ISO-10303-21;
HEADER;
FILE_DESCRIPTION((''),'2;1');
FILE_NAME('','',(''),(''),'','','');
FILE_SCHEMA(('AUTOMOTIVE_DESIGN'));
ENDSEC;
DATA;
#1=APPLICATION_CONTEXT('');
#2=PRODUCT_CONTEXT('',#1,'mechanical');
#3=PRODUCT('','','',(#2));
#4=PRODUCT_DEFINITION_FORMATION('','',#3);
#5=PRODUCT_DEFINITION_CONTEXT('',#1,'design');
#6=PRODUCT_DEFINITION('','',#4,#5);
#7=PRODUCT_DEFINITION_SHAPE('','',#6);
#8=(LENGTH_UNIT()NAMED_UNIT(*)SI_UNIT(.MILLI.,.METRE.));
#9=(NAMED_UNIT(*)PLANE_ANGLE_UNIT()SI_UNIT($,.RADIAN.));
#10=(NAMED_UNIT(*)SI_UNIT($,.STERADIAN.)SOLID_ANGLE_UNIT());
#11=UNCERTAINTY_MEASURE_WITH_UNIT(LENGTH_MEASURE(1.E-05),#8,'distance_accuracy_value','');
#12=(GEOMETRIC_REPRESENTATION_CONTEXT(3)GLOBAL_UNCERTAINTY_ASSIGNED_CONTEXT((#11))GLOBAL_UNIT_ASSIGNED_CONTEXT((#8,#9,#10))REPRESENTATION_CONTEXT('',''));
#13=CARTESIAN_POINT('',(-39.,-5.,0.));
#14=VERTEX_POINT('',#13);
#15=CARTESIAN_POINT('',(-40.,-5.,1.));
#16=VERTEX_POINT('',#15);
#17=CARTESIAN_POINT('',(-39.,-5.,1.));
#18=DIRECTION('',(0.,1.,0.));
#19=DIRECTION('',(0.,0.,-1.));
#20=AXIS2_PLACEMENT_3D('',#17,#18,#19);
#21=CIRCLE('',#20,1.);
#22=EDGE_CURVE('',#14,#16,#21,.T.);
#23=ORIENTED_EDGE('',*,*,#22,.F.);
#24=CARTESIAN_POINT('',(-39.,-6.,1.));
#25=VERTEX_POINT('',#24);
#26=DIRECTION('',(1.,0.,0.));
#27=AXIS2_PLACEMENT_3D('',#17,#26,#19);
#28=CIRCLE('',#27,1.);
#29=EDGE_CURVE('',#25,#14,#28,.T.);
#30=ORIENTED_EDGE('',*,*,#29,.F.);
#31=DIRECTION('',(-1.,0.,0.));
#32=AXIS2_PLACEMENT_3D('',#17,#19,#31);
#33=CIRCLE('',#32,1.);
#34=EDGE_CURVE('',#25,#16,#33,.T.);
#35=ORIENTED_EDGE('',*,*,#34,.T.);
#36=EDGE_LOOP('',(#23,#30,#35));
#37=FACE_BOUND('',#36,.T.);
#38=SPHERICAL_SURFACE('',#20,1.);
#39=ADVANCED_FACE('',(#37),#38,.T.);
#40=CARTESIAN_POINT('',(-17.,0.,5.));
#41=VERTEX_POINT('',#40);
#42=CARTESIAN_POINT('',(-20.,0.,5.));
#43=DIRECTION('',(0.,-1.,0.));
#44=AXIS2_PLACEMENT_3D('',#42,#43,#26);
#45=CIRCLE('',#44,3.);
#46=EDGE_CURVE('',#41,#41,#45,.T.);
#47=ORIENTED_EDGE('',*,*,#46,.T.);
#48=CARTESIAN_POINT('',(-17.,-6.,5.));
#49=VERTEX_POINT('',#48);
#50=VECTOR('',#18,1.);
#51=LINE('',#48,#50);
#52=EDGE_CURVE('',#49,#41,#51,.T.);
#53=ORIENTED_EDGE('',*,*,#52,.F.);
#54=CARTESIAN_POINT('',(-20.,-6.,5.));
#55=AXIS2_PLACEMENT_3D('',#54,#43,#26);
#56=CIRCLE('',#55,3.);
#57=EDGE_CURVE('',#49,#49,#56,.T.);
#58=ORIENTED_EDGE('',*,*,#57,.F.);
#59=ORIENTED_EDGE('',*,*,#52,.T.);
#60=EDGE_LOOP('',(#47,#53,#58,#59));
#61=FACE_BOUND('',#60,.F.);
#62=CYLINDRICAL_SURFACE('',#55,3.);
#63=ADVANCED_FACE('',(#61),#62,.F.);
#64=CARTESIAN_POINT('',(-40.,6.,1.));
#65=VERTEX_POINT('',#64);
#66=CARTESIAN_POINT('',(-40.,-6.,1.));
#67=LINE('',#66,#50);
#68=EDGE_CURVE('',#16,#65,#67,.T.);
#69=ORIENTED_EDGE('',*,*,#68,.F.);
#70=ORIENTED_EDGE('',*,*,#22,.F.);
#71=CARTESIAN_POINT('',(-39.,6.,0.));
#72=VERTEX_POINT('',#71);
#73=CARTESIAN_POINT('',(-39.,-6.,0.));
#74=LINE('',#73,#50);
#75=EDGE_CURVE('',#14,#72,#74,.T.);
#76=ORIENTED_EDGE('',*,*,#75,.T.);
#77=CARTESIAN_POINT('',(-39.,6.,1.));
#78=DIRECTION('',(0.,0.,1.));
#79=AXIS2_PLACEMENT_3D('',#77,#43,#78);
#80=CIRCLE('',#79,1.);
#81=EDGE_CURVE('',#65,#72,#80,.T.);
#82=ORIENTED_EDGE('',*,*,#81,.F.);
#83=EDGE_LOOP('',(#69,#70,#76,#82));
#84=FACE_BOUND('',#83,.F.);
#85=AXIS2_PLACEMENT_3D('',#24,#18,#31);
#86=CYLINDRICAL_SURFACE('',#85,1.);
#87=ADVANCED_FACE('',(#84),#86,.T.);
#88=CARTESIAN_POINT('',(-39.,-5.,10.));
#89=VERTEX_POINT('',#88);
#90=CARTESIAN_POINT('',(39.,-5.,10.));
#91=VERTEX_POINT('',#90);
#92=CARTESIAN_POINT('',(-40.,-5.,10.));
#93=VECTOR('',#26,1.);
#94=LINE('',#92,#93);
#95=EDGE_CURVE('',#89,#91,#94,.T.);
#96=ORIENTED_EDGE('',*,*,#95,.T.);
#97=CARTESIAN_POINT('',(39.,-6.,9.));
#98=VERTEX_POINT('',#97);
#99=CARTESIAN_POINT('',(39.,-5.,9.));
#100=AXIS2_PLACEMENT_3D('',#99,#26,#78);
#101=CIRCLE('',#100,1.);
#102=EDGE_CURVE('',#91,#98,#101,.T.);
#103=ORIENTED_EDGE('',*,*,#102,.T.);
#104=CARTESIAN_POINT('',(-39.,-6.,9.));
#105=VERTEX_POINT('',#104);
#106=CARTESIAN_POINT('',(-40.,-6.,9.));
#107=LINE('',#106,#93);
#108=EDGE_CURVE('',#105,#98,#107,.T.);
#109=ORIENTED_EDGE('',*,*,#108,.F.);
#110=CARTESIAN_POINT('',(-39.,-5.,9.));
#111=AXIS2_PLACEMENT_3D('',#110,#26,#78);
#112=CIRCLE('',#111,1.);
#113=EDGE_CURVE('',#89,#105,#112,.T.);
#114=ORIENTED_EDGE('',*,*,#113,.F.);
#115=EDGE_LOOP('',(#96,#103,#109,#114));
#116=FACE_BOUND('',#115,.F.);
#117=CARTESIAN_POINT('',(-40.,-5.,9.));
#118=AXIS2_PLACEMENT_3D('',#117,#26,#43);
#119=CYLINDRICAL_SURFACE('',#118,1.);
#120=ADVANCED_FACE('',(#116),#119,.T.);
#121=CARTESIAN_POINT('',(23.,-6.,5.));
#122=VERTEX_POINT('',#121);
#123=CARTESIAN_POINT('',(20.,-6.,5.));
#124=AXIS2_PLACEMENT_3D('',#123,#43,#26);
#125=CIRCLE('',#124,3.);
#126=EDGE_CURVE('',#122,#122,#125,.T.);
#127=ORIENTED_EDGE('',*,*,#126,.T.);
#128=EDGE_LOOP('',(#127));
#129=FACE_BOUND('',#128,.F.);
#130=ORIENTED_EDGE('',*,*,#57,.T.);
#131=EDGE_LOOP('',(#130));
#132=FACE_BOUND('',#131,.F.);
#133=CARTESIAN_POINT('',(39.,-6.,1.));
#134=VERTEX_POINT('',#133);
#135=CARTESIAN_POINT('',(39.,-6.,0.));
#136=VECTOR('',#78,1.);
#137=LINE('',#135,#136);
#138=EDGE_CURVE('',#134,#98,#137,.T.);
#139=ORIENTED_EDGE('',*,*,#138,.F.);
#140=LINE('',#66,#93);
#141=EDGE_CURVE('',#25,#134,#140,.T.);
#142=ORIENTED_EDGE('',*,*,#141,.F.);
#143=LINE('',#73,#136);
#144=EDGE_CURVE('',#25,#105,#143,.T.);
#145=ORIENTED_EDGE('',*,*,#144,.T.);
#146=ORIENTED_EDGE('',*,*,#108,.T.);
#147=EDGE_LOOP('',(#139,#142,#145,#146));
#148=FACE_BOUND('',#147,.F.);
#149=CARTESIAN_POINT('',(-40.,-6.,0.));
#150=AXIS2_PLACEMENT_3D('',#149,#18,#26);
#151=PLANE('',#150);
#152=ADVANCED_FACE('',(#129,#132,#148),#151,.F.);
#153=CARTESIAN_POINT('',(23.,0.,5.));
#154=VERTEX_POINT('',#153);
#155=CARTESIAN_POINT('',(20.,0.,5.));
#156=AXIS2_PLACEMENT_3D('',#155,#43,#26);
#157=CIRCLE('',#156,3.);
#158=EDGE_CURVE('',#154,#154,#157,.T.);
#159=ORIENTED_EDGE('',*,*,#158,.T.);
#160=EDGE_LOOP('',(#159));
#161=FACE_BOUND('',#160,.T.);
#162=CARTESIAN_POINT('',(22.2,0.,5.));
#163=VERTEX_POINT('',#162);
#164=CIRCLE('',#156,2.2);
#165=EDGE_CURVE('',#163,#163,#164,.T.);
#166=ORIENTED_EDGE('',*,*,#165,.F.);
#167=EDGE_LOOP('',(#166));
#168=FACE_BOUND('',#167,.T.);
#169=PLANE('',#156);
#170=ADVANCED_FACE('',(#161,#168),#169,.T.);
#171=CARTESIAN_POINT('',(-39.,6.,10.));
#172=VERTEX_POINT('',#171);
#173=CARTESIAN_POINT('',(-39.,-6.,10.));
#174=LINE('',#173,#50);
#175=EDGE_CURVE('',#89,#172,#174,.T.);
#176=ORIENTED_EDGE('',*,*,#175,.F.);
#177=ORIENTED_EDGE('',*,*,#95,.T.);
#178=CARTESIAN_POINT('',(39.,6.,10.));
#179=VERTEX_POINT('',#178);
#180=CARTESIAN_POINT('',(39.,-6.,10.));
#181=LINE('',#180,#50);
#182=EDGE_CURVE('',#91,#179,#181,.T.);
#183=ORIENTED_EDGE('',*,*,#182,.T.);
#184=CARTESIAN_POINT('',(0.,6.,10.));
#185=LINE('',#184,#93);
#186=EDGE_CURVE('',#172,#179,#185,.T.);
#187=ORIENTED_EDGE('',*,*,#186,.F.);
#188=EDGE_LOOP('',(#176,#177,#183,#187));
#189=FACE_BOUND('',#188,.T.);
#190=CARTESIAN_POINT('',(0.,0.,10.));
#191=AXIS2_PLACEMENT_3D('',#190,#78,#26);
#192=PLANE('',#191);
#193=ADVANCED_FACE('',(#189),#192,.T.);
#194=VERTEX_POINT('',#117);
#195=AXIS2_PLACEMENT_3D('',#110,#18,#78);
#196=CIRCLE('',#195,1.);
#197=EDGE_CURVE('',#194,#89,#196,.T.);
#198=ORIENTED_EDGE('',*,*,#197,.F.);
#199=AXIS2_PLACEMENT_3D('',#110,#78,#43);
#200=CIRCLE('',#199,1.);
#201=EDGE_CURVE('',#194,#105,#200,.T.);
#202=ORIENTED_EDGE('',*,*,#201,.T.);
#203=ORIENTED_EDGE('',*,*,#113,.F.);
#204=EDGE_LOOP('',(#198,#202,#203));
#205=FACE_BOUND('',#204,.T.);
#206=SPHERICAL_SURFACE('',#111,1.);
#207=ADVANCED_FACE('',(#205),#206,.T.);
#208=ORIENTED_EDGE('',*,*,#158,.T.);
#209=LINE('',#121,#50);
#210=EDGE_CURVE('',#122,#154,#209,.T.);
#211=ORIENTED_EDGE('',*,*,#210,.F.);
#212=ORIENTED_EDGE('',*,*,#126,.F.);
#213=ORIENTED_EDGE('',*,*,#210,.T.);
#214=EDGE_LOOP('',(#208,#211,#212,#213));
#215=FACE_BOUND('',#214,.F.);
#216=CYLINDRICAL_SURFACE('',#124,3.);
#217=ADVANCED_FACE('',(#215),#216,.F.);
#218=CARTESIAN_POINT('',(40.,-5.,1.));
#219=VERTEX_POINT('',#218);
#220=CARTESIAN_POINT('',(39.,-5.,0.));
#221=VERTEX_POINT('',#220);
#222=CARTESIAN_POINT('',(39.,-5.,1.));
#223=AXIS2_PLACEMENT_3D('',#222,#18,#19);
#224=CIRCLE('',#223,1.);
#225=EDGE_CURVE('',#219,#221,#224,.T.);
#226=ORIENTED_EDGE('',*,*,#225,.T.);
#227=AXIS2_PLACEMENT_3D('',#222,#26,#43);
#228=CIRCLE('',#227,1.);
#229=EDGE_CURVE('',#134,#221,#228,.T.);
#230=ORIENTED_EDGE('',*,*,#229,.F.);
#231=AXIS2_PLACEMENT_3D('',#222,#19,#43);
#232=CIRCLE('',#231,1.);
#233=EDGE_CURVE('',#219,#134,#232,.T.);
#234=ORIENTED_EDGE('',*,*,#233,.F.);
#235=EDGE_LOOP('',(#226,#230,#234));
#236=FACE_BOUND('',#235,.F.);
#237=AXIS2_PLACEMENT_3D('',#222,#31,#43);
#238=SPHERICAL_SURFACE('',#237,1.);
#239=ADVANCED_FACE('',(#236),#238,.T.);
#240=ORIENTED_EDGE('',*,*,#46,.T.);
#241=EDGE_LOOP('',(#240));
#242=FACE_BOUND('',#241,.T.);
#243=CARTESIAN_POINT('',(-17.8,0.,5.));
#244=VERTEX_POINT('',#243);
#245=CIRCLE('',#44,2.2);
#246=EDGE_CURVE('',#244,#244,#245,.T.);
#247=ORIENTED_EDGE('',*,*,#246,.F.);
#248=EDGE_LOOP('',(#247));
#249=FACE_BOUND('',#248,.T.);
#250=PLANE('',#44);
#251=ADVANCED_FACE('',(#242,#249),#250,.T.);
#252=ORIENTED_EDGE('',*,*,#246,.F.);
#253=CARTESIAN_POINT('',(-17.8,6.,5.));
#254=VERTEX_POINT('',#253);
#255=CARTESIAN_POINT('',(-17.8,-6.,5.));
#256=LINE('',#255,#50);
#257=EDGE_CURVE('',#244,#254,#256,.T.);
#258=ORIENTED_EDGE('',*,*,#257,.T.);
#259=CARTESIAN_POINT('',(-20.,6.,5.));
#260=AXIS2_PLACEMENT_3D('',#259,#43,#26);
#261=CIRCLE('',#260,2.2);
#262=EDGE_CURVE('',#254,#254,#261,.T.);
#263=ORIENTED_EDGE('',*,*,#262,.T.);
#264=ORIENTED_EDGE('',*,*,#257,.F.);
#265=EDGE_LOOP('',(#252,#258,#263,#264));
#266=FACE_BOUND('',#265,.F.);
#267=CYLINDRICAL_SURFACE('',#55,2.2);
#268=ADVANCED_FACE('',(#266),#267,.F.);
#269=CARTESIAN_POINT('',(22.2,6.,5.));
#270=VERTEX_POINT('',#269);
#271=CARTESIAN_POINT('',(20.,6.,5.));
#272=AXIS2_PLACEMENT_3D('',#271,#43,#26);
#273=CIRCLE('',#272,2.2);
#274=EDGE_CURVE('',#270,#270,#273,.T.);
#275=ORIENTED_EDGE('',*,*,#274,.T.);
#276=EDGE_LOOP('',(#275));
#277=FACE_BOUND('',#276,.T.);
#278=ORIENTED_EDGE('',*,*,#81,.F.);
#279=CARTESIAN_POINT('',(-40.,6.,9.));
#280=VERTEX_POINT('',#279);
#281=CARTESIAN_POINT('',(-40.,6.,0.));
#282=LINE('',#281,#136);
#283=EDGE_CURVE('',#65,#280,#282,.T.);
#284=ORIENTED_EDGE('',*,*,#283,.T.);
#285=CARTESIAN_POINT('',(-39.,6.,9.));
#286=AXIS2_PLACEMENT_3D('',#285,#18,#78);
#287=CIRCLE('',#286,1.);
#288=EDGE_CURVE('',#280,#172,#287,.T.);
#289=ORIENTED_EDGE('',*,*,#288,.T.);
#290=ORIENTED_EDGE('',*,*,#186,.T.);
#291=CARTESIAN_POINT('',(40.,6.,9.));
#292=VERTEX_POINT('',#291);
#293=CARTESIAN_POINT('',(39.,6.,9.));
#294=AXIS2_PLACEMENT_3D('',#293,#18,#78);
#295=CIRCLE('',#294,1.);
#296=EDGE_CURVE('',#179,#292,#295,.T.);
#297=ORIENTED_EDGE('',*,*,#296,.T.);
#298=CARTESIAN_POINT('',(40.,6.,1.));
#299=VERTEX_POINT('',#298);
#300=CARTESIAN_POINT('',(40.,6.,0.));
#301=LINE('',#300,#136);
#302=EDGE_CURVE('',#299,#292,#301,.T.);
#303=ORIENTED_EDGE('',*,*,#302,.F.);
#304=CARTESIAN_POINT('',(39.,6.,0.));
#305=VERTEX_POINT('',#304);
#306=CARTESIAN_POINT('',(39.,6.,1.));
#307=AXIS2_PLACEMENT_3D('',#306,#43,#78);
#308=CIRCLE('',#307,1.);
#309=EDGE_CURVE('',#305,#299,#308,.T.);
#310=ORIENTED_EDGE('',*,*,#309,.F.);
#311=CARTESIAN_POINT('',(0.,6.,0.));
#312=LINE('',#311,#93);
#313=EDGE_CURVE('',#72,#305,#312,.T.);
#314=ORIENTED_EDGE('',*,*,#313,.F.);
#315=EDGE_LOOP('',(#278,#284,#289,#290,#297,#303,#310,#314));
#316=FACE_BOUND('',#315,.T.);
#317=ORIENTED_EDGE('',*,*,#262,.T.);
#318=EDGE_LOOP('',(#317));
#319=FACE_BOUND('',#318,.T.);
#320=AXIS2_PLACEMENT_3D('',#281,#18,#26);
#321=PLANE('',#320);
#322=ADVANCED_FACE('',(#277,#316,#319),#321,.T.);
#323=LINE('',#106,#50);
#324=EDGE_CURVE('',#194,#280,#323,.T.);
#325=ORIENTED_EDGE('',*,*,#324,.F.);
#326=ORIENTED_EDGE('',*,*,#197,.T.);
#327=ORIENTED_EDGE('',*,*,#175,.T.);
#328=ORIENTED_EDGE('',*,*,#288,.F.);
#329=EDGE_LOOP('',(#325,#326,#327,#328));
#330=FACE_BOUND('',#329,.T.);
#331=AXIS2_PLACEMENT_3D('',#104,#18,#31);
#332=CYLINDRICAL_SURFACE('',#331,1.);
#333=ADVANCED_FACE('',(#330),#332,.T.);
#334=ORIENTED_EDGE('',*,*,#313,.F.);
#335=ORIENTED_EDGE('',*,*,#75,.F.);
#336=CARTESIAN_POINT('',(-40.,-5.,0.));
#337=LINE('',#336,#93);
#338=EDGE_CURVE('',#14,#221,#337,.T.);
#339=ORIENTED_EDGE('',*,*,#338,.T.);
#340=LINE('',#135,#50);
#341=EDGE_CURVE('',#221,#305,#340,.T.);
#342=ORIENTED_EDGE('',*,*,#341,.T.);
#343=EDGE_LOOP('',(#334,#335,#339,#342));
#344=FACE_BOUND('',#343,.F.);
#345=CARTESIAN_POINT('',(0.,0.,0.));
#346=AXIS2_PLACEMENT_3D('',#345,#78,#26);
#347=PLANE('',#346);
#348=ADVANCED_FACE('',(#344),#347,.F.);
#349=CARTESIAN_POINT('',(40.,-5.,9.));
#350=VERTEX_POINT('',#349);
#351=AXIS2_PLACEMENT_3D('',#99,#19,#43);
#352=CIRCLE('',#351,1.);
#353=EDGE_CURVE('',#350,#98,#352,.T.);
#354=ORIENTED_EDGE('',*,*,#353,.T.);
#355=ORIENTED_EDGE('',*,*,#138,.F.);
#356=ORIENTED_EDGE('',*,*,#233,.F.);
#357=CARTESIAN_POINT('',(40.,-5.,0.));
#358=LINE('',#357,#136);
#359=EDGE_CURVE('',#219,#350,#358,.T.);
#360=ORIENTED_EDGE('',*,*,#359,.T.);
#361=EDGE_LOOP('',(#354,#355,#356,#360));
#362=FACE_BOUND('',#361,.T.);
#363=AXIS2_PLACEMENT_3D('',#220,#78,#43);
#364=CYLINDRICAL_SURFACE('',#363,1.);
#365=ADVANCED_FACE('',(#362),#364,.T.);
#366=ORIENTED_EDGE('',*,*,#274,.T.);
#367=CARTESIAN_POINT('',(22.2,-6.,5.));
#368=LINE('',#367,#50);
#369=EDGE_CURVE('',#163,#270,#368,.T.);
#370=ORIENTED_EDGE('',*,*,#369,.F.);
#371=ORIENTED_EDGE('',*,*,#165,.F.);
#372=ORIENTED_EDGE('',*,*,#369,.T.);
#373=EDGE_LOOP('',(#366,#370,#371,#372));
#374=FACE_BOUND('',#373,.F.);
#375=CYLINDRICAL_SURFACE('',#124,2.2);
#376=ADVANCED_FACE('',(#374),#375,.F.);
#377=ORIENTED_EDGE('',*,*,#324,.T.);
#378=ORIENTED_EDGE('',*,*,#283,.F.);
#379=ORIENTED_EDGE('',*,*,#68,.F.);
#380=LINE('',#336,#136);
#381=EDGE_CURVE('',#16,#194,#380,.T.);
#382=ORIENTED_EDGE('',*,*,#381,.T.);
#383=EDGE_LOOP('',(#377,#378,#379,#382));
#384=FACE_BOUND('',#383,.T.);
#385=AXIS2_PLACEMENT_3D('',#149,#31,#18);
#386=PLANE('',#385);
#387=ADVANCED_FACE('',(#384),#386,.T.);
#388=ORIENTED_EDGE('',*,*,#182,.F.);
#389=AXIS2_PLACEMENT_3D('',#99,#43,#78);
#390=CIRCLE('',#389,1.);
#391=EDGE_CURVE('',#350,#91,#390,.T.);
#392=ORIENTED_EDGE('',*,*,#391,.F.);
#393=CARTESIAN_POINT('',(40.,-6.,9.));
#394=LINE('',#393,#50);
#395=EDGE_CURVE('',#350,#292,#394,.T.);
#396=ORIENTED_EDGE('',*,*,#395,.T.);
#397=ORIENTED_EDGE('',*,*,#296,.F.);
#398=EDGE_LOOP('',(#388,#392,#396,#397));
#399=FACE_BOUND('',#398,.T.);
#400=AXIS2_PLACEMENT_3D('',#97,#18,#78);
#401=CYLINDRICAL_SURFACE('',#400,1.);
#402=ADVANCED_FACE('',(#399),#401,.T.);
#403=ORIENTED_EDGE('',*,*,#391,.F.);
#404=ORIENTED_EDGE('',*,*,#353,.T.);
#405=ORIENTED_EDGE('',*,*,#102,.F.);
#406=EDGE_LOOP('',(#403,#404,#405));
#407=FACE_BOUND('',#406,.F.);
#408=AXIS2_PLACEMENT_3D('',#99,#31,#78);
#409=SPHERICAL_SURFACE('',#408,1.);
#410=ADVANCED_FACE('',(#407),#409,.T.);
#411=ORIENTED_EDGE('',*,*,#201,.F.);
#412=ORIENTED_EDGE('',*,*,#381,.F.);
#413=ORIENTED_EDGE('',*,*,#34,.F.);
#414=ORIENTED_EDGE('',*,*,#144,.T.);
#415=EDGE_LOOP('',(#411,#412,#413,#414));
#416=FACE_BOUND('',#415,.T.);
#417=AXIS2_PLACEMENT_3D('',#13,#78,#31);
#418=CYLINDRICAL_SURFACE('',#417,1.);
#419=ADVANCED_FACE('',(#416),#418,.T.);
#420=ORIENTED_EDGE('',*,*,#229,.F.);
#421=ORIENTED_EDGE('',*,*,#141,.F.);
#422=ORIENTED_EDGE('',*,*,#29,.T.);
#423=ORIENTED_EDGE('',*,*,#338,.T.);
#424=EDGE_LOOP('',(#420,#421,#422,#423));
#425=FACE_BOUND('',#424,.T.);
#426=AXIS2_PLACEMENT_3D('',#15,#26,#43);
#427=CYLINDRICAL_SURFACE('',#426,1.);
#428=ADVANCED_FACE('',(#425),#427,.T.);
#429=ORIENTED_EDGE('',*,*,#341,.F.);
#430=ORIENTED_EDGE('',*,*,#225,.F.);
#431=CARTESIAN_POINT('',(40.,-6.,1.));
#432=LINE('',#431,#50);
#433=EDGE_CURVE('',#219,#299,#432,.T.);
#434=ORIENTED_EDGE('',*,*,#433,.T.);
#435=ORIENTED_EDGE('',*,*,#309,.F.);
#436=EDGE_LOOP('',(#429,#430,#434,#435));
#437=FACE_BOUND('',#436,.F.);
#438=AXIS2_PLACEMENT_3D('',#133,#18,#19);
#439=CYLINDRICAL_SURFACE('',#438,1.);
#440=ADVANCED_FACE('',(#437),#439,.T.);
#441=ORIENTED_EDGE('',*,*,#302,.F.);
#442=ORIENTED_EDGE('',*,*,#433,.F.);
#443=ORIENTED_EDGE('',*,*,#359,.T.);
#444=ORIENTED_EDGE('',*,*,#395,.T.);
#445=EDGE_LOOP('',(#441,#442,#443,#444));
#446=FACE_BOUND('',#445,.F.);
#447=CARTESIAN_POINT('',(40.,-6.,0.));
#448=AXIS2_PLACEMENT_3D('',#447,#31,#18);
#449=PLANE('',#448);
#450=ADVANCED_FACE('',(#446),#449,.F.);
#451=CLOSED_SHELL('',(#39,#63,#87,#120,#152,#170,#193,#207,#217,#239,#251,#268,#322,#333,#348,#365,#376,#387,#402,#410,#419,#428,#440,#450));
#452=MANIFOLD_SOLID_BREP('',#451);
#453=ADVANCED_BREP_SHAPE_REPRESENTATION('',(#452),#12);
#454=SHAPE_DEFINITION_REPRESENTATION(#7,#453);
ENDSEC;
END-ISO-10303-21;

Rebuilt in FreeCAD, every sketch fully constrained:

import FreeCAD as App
import Part
import Sketcher


def edges_at(feature, points):
    """Names of the edges that pass closest to the given points."""
    edges = feature.Shape.Edges
    near = lambda p: min(range(len(edges)), key=lambda i: edges[i].distToShape(Part.Vertex(*p))[0])
    return sorted({f"Edge{near(p) + 1}" for p in points})

doc = App.newDocument("Part")
body = doc.addObject("PartDesign::Body", "Body")

sketch1 = body.newObject("Sketcher::SketchObject", "Sketch")
sketch1.AttachmentSupport = (doc.getObject("XY_Plane"), [""])
sketch1.MapMode = "FlatFace"
sketch1.addGeometry([
    Part.LineSegment(App.Vector(-40, 6, 0), App.Vector(-40, -6, 0)),
    Part.LineSegment(App.Vector(-40, -6, 0), App.Vector(40, -6, 0)),
    Part.LineSegment(App.Vector(40, -6, 0), App.Vector(40, 6, 0)),
    Part.LineSegment(App.Vector(40, 6, 0), App.Vector(-40, 6, 0)),
], False)
sketch1.addConstraint([
    Sketcher.Constraint("Coincident", 0, 2, 1, 1),
    Sketcher.Constraint("Coincident", 1, 2, 2, 1),
    Sketcher.Constraint("Coincident", 2, 2, 3, 1),
    Sketcher.Constraint("Coincident", 3, 2, 0, 1),
    Sketcher.Constraint("Vertical", 0),
    Sketcher.Constraint("Horizontal", 1),
    Sketcher.Constraint("Vertical", 2),
    Sketcher.Constraint("Horizontal", 3),
    Sketcher.Constraint("Symmetric", 0, 2, 2, 2, -1, 1),
    Sketcher.Constraint("DistanceX", 1, 1, 1, 2, 80.0),
    Sketcher.Constraint("DistanceY", 0, 2, 0, 1, 12.0),
])
pad1 = body.newObject("PartDesign::Pad", "Pad")
pad1.Profile = sketch1
pad1.Length = 10

sketch2 = body.newObject("Sketcher::SketchObject", "Sketch001")
sketch2.AttachmentSupport = (doc.getObject("XZ_Plane"), [""])
sketch2.MapMode = "FlatFace"
sketch2.AttachmentOffset = App.Placement(App.Vector(0, 0, 6), App.Rotation())
sketch2.addGeometry([
    Part.Circle(App.Vector(-20, 5, 0), App.Vector(0, 0, 1), 2.2),
    Part.Circle(App.Vector(20, 5, 0), App.Vector(0, 0, 1), 2.2),
], False)
sketch2.addConstraint([
    Sketcher.Constraint("Equal", 0, 1),
    Sketcher.Constraint("Symmetric", 0, 3, 1, 3, -2),
    Sketcher.Constraint("Diameter", 0, 4.4),
    Sketcher.Constraint("DistanceX", 0, 3, -1, 1, 20.0),
    Sketcher.Constraint("DistanceY", -1, 1, 0, 3, 5.0),
])
pocket1 = body.newObject("PartDesign::Pocket", "Pocket")
pocket1.Profile = sketch2
pocket1.Type = "ThroughAll"

sketch3 = body.newObject("Sketcher::SketchObject", "Sketch002")
sketch3.AttachmentSupport = (doc.getObject("XZ_Plane"), [""])
sketch3.MapMode = "FlatFace"
sketch3.AttachmentOffset = App.Placement(App.Vector(0, 0, 6), App.Rotation())
sketch3.addGeometry([
    Part.Circle(App.Vector(-20, 5, 0), App.Vector(0, 0, 1), 3),
    Part.Circle(App.Vector(-20, 5, 0), App.Vector(0, 0, 1), 2.2),
    Part.Circle(App.Vector(20, 5, 0), App.Vector(0, 0, 1), 3),
    Part.Circle(App.Vector(20, 5, 0), App.Vector(0, 0, 1), 2.2),
], False)
sketch3.addConstraint([
    Sketcher.Constraint("Coincident", 1, 3, 0, 3),
    Sketcher.Constraint("Coincident", 3, 3, 2, 3),
    Sketcher.Constraint("Equal", 0, 2),
    Sketcher.Constraint("Equal", 1, 3),
    Sketcher.Constraint("Symmetric", 0, 3, 2, 3, -2),
    Sketcher.Constraint("Diameter", 0, 6.0),
    Sketcher.Constraint("Diameter", 1, 4.4),
    Sketcher.Constraint("DistanceX", 0, 3, -1, 1, 20.0),
    Sketcher.Constraint("DistanceY", -1, 1, 0, 3, 5.0),
])
pocket2 = body.newObject("PartDesign::Pocket", "Pocket001")
pocket2.Profile = sketch3
pocket2.Length = 6
doc.recompute()

fillet = body.newObject("PartDesign::Fillet", "Fillet")
fillet.Base = (pocket2, edges_at(pocket2, [
    (0, -6, 10),
    (-40, 0, 10),
    (40, 0, 10),
    (-40, 0, 0),
    (0, -6, 0),
    (40, -6, 5),
    (-40, -6, 5),
    (40, 0, 0),
]))
fillet.Radius = 1

doc.recompute()
